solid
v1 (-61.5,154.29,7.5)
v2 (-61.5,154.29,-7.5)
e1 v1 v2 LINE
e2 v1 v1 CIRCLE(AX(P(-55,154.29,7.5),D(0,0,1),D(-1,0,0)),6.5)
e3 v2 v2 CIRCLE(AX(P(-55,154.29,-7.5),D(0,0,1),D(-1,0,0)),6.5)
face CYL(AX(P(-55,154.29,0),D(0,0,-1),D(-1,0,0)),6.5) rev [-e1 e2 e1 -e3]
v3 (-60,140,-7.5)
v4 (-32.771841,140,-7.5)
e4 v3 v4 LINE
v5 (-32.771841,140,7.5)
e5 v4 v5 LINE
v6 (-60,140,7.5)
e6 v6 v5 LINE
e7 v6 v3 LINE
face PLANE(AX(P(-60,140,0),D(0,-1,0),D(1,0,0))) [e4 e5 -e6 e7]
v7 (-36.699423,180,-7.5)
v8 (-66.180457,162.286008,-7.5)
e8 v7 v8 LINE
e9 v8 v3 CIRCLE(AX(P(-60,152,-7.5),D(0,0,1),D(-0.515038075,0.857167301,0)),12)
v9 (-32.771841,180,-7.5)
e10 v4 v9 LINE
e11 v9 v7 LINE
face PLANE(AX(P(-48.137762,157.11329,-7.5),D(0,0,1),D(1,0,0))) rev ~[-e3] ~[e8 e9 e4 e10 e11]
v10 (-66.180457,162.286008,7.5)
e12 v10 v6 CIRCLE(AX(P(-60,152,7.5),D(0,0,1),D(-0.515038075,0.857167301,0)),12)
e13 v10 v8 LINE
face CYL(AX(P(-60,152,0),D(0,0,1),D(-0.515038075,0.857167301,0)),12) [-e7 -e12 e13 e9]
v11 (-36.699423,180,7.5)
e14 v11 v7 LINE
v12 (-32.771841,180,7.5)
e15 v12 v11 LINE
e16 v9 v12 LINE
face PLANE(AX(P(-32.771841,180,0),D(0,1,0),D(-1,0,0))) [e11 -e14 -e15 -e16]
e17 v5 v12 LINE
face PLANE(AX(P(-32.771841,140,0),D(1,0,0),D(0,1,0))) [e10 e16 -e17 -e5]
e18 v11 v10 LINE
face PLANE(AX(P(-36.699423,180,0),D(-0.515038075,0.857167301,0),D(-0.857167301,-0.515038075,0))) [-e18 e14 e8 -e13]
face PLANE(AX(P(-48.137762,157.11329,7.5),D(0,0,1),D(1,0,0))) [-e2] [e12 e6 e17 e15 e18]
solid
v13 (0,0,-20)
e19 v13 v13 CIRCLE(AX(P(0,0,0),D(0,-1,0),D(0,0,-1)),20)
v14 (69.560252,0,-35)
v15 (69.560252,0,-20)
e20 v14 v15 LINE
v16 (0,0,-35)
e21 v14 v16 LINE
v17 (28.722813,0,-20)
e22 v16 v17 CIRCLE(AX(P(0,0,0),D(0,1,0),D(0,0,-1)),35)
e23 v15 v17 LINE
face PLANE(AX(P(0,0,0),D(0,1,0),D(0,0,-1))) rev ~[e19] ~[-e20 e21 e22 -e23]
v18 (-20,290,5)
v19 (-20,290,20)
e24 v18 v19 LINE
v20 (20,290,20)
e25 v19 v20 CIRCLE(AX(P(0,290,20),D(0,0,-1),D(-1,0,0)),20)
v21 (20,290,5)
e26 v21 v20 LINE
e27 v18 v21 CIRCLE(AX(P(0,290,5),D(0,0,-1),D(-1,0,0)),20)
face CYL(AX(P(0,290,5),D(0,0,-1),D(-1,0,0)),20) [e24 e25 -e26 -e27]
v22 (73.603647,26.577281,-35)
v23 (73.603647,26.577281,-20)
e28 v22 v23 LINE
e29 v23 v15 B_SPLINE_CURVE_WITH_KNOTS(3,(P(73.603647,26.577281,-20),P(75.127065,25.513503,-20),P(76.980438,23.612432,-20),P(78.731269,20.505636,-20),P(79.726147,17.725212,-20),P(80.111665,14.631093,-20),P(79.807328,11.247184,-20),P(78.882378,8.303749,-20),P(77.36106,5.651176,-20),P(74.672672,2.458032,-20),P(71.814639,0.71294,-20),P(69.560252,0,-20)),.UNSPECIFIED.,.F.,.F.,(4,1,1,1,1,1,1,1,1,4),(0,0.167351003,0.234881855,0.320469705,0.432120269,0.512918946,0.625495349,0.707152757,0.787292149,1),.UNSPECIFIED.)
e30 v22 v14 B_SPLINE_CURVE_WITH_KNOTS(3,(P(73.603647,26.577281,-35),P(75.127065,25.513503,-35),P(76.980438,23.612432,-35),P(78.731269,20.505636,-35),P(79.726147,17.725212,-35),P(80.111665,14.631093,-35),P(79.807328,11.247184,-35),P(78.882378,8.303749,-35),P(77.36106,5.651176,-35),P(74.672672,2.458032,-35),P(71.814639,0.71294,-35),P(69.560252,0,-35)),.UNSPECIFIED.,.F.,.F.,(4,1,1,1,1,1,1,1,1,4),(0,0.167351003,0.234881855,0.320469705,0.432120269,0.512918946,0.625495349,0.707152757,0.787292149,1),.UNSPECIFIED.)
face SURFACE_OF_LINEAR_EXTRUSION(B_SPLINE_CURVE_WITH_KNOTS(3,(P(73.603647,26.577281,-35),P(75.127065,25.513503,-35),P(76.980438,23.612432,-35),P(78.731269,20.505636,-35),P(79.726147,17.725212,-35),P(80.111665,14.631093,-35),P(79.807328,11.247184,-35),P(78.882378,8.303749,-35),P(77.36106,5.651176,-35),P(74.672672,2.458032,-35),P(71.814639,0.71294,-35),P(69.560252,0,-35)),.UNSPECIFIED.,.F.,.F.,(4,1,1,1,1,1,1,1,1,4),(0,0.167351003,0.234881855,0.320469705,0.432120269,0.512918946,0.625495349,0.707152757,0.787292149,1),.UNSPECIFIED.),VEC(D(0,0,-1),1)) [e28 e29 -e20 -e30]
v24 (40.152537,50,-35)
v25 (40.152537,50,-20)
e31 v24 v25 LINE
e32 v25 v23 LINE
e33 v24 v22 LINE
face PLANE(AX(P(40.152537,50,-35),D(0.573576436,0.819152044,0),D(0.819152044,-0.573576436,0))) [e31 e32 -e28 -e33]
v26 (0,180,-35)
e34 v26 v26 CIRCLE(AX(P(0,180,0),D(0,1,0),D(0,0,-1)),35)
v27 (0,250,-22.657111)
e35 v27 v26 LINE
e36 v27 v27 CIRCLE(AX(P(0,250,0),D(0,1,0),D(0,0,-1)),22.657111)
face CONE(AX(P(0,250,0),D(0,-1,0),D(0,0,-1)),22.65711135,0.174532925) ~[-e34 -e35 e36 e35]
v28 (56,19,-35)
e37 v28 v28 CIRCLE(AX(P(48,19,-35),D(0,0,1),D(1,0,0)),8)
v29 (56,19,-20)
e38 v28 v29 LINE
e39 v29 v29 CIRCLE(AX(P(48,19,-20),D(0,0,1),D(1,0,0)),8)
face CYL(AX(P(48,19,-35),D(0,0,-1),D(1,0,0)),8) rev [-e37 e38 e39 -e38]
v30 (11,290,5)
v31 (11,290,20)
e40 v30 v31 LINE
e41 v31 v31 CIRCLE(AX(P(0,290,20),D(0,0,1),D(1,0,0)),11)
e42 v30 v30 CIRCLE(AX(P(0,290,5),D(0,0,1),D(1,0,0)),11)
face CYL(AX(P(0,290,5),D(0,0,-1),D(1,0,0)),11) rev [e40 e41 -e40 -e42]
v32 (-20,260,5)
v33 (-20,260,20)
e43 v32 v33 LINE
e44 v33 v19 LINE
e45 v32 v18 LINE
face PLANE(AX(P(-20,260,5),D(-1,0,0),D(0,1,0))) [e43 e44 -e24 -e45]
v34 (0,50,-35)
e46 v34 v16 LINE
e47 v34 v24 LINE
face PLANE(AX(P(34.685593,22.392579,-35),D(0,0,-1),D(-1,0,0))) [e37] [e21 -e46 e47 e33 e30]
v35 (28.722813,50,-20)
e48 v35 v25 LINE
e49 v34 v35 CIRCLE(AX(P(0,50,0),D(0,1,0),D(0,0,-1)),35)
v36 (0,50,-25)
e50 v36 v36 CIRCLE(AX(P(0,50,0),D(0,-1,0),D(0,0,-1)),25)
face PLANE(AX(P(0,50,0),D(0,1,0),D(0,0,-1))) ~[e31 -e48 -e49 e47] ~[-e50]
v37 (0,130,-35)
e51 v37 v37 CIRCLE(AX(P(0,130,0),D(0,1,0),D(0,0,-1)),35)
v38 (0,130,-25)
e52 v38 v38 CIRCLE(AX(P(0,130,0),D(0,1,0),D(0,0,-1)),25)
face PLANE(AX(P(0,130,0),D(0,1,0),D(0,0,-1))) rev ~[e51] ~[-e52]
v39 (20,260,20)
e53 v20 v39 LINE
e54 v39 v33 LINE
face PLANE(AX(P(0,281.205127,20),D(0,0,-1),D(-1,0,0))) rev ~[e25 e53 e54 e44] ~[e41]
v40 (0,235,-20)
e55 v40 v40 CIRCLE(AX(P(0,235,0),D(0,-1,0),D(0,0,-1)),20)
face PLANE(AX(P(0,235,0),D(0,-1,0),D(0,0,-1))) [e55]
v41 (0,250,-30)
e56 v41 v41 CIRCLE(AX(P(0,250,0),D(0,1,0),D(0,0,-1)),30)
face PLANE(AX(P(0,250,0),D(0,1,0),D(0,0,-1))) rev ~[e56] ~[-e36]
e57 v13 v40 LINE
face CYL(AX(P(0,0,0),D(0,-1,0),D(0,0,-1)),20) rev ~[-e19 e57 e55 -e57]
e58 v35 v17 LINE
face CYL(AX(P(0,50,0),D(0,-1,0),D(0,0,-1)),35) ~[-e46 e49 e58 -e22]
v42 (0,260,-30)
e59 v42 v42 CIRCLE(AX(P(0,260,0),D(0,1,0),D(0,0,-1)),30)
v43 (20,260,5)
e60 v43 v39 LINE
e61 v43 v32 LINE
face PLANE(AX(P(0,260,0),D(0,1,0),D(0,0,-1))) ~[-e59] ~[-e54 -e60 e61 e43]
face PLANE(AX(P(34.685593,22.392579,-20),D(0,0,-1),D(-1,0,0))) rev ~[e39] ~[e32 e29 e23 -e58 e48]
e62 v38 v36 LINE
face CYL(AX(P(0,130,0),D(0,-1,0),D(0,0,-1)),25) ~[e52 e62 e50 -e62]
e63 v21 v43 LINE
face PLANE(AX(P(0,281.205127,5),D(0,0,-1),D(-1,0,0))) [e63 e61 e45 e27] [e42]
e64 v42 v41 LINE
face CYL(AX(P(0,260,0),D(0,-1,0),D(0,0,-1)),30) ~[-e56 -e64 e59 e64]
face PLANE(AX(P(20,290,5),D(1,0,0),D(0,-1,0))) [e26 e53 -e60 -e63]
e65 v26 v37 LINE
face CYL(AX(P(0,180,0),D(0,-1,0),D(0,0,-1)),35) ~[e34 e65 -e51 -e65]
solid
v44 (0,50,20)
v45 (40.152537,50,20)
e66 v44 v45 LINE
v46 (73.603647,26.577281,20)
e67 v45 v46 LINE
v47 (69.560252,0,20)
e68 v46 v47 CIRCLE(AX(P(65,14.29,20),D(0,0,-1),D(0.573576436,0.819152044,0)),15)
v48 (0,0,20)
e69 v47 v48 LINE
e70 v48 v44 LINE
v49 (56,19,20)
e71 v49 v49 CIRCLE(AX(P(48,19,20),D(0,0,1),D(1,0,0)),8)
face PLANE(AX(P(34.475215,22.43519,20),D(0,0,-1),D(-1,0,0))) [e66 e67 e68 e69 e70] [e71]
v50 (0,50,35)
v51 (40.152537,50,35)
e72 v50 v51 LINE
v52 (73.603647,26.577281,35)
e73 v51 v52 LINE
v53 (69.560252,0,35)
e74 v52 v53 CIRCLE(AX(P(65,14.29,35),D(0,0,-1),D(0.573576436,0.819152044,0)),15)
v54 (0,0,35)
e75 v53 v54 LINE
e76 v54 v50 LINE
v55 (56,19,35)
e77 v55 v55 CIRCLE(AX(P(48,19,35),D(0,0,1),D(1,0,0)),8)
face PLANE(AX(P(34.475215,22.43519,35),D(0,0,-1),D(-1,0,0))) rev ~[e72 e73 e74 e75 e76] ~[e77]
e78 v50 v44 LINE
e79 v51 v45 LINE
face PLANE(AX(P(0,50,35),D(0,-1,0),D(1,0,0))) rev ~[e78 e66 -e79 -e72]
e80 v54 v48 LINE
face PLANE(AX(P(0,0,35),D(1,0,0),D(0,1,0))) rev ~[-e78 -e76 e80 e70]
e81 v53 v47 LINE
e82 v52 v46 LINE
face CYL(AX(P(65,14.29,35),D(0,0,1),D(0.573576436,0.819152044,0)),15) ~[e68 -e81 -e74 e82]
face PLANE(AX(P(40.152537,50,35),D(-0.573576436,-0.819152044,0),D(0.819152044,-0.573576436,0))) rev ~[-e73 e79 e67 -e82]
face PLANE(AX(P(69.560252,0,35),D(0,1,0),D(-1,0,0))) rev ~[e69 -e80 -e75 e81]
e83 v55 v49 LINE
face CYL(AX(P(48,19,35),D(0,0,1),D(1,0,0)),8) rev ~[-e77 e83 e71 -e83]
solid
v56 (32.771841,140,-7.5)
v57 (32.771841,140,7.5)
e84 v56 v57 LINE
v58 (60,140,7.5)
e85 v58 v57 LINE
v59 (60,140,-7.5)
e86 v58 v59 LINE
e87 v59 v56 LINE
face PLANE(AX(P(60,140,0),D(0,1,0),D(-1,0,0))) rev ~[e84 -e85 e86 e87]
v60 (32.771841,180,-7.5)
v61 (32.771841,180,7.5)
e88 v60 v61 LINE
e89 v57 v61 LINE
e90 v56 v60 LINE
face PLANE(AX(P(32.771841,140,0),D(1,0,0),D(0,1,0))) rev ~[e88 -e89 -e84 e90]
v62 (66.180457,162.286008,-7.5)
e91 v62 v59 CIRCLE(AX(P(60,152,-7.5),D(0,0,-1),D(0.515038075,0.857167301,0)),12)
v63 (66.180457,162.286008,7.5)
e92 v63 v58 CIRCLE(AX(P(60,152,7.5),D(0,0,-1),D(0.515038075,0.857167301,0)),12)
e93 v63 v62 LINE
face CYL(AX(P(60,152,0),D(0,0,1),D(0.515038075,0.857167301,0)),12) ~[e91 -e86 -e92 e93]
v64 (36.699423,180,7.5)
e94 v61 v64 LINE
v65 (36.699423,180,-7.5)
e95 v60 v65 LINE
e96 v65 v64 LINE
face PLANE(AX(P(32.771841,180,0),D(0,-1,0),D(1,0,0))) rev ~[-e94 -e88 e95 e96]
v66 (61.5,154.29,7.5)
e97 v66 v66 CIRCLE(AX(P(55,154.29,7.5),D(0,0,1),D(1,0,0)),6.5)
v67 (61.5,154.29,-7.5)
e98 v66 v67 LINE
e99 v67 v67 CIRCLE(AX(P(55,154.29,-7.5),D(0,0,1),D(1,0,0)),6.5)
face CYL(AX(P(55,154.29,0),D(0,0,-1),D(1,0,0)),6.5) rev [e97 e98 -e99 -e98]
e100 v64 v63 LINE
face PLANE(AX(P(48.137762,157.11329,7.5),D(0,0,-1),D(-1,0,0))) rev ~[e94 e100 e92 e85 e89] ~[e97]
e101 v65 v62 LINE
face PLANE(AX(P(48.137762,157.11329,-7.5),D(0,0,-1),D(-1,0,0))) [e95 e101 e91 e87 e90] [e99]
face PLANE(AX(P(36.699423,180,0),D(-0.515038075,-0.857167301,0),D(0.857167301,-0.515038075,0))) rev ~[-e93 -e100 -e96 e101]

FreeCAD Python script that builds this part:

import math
import FreeCAD as App
import Part
import Sketcher

V = App.Vector
Q = App.Units.Quantity


def add_polygon(sketch, points):
    """Adds a closed chain of lines whose ends are joined by coincident constraints."""
    first, n = sketch.GeometryCount, len(points)
    for a, b in zip(points, points[1:] + points[:1]):
        sketch.addGeometry(Part.LineSegment(App.Vector(*a, 0), App.Vector(*b, 0)), False)
    for i in range(n):
        sketch.addConstraint(Sketcher.Constraint("Coincident", first + i, 2, first + (i + 1) % n, 1))

doc = App.newDocument("Part")
body = doc.addObject("PartDesign::Body", "Body")

sketch1 = body.newObject("Sketcher::SketchObject", "Sketch")
sketch1.AttachmentSupport = (doc.getObject("XY_Plane"), [""])
sketch1.MapMode = "FlatFace"
add_polygon(sketch1, [(30, 260), (0, 260), (0, 0), (35, 0), (35, 50), (25, 50), (25, 130), (35, 130), (35, 180), (23, 250), (30, 250)])
sketch1.addConstraint([
    Sketcher.Constraint("Horizontal", 0),
    Sketcher.Constraint("Vertical", 1),
    Sketcher.Constraint("Horizontal", 2),
    Sketcher.Constraint("Vertical", 3),
    Sketcher.Constraint("Horizontal", 4),
    Sketcher.Constraint("Vertical", 5),
    Sketcher.Constraint("Horizontal", 6),
    Sketcher.Constraint("Vertical", 7),
    Sketcher.Constraint("Horizontal", 9),
    Sketcher.Constraint("Vertical", 10),
    Sketcher.Constraint("Coincident", 1, 2, -1, 1),
    Sketcher.Constraint("Vertical", 3, 2, 6, 2),
    Sketcher.Constraint("Equal", 3, 7),
    Sketcher.Constraint("Equal", 6, 10),
    Sketcher.Constraint("DistanceX", 0, 2, 0, 1, Q("30 mm")),
    Sketcher.Constraint("DistanceX", 2, 1, 2, 2, Q("35 mm")),
    Sketcher.Constraint("DistanceX", 4, 2, 4, 1, Q("10 mm")),
    Sketcher.Constraint("DistanceY", 1, 2, 1, 1, Q("260 mm")),
    Sketcher.Constraint("DistanceY", 3, 1, 3, 2, Q("50 mm")),
    Sketcher.Constraint("DistanceY", 5, 1, 5, 2, Q("80 mm")),
    Sketcher.Constraint("Angle", 8, Q("100 deg")),
])
revolution = body.newObject("PartDesign::Revolution", "Revolution")
revolution.Profile = sketch1
revolution.ReferenceAxis = (sketch1, ["V_Axis"])
revolution.Angle = 360

sketch2 = body.newObject("Sketcher::SketchObject", "Sketch001")
sketch2.AttachmentSupport = (doc.getObject("XY_Plane"), [""])
sketch2.MapMode = "FlatFace"
sketch2.AttachmentOffset = App.Placement(V(0, 0, 5), App.Rotation())
sketch2.addGeometry([
    Part.LineSegment(V(-20, 290, 0), V(-20, 260, 0)),
    Part.LineSegment(V(-20, 260, 0), V(20, 260, 0)),
    Part.LineSegment(V(20, 260, 0), V(20, 290, 0)),
    Part.ArcOfCircle(Part.Circle(V(0, 290, 0), V(0, 0, 1), 20), math.radians(0), math.radians(180)),
    Part.Circle(V(0, 290, 0), V(0, 0, 1), 11),
], False)
sketch2.addConstraint([
    Sketcher.Constraint("Coincident", 0, 2, 1, 1),
    Sketcher.Constraint("Coincident", 1, 2, 2, 1),
    Sketcher.Constraint("Tangent", 2, 2, 3, 1),
    Sketcher.Constraint("Tangent", 3, 2, 0, 1),
    Sketcher.Constraint("Vertical", 0),
    Sketcher.Constraint("Horizontal", 1),
    Sketcher.Constraint("Vertical", 2),
    Sketcher.Constraint("Coincident", 4, 3, 3, 3),
    Sketcher.Constraint("PointOnObject", 3, 3, -2),
    Sketcher.Constraint("Diameter", 4, Q("22 mm")),
    Sketcher.Constraint("Radius", 3, Q("20 mm")),
    Sketcher.Constraint("DistanceY", 0, 2, 0, 1, Q("30 mm")),
    Sketcher.Constraint("DistanceY", -1, 1, 3, 3, Q("290 mm")),
])
pad1 = body.newObject("PartDesign::Pad", "Pad")
pad1.Profile = sketch2
pad1.Length = 15

sketch3 = body.newObject("Sketcher::SketchObject", "Sketch002")
sketch3.AttachmentSupport = (doc.getObject("XY_Plane"), [""])
sketch3.MapMode = "FlatFace"
sketch3.AttachmentOffset = App.Placement(V(0, 0, -35), App.Rotation())
sketch3.addGeometry([
    Part.LineSegment(V(0, 50, 0), V(0, 0, 0)),
    Part.LineSegment(V(0, 0, 0), V(69.560252, 0, 0)),
    Part.BSplineCurve([V(73.603647, 26.577281, 0), V(75.127065, 25.513503, 0), V(76.980438, 23.612432, 0), V(78.731269, 20.505636, 0), V(79.726147, 17.725212, 0), V(80.111665, 14.631093, 0), V(79.807328, 11.247184, 0), V(78.882378, 8.303749, 0), V(77.36106, 5.651176, 0), V(74.672672, 2.458032, 0), V(71.814639, 0.71294, 0), V(69.560252, 0, 0)], [4, 1, 1, 1, 1, 1, 1, 1, 1, 4], [0, 0.167351003, 0.234881855, 0.320469705, 0.432120269, 0.512918946, 0.625495349, 0.707152757, 0.787292149, 1], False, 3, [1, 1, 1, 1, 1, 1, 1, 1, 1, 1, 1, 1], False),
    Part.LineSegment(V(73.603647, 26.577281, 0), V(40.152537, 50, 0)),
    Part.LineSegment(V(40.152537, 50, 0), V(0, 50, 0)),
    Part.Circle(V(48, 19, 0), V(0, 0, 1), 8),
], False)
sketch3.addConstraint([
    Sketcher.Constraint("Block", 2),
    Sketcher.Constraint("Coincident", 0, 2, 1, 1),
    Sketcher.Constraint("Coincident", 1, 2, 2, 2),
    Sketcher.Constraint("Coincident", 2, 1, 3, 1),
    Sketcher.Constraint("Coincident", 3, 2, 4, 1),
    Sketcher.Constraint("Coincident", 4, 2, 0, 1),
    Sketcher.Constraint("Vertical", 0),
    Sketcher.Constraint("Horizontal", 1),
    Sketcher.Constraint("Horizontal", 4),
    Sketcher.Constraint("PointOnObject", 4, 2, -2),
    Sketcher.Constraint("Diameter", 5, Q("16 mm")),
    Sketcher.Constraint("DistanceY", 0, 2, 0, 1, Q("50 mm")),
    Sketcher.Constraint("Angle", 3, Q("145 deg")),
    Sketcher.Constraint("DistanceX", -1, 1, 5, 3, Q("48 mm")),
    Sketcher.Constraint("DistanceY", -1, 1, 5, 3, Q("19 mm")),
])
pad2 = body.newObject("PartDesign::Pad", "Pad001")
pad2.Profile = sketch3
pad2.Length = 15

sketch4 = body.newObject("Sketcher::SketchObject", "Sketch003")
sketch4.AttachmentSupport = (doc.getObject("XZ_Plane"), [""])
sketch4.MapMode = "FlatFace"
sketch4.addGeometry(Part.Circle(V(0, 0, 0), V(0, 0, 1), 20), False)
sketch4.addConstraint([
    Sketcher.Constraint("Coincident", 0, 3, -1, 1),
    Sketcher.Constraint("Diameter", 0, Q("40 mm")),
])
pocket1 = body.newObject("PartDesign::Pocket", "Pocket")
pocket1.Profile = sketch4
pocket1.Length = 235
body2 = doc.addObject("PartDesign::Body", "Body001")

sketch5 = body2.newObject("Sketcher::SketchObject", "Sketch004")
sketch5.AttachmentSupport = (doc.getObject("XY_Plane001"), [""])
sketch5.MapMode = "FlatFace"
sketch5.addGeometry([
    Part.LineSegment(V(66.2, 162.3, 0), V(36.7, 180, 0)),
    Part.LineSegment(V(36.7, 180, 0), V(32.8, 180, 0)),
    Part.LineSegment(V(32.8, 180, 0), V(32.8, 140, 0)),
    Part.LineSegment(V(32.8, 140, 0), V(60, 140, 0)),
    Part.ArcOfCircle(Part.Circle(V(60, 152, 0), V(0, 0, 1), 12), math.radians(-90), math.radians(59)),
    Part.Circle(V(55, 154.3, 0), V(0, 0, 1), 6.5),
], False)
sketch5.addConstraint([
    Sketcher.Constraint("Coincident", 0, 2, 1, 1),
    Sketcher.Constraint("Coincident", 1, 2, 2, 1),
    Sketcher.Constraint("Coincident", 2, 2, 3, 1),
    Sketcher.Constraint("Tangent", 3, 2, 4, 1),
    Sketcher.Constraint("Tangent", 4, 2, 0, 1),
    Sketcher.Constraint("Horizontal", 1),
    Sketcher.Constraint("Vertical", 2),
    Sketcher.Constraint("Horizontal", 3),
    Sketcher.Constraint("Diameter", 5, Q("13 mm")),
    Sketcher.Constraint("Radius", 4, Q("12 mm")),
    Sketcher.Constraint("DistanceY", 2, 2, 2, 1, Q("40 mm")),
    Sketcher.Constraint("Angle", 0, Q("149 deg")),
    Sketcher.Constraint("DistanceX", -1, 1, 4, 3, Q("60 mm")),
    Sketcher.Constraint("DistanceY", -1, 1, 4, 3, Q("152 mm")),
    Sketcher.Constraint("DistanceX", -1, 1, 5, 3, Q("55 mm")),
    Sketcher.Constraint("DistanceY", -1, 1, 5, 3, Q("154.29 mm")),
    Sketcher.Constraint("DistanceX", 3, 1, 3, 2, Q("27.228159 mm")),
])
pad3 = body2.newObject("PartDesign::Pad", "Pad002")
pad3.Profile = sketch5
pad3.Length = 15
pad3.Midplane = True
body3 = doc.addObject("PartDesign::Body", "Body002")

sketch6 = body3.newObject("Sketcher::SketchObject", "Sketch005")
sketch6.AttachmentSupport = (doc.getObject("XY_Plane002"), [""])
sketch6.MapMode = "FlatFace"
sketch6.addGeometry([
    Part.LineSegment(V(-60, 140, 0), V(-32.8, 140, 0)),
    Part.LineSegment(V(-32.8, 140, 0), V(-32.8, 180, 0)),
    Part.LineSegment(V(-32.8, 180, 0), V(-36.7, 180, 0)),
    Part.LineSegment(V(-36.7, 180, 0), V(-66.2, 162.3, 0)),
    Part.ArcOfCircle(Part.Circle(V(-60, 152, 0), V(0, 0, 1), 12), math.radians(121), math.radians(270)),
    Part.Circle(V(-55, 154.3, 0), V(0, 0, 1), 6.5),
], False)
sketch6.addConstraint([
    Sketcher.Constraint("Coincident", 0, 2, 1, 1),
    Sketcher.Constraint("Coincident", 1, 2, 2, 1),
    Sketcher.Constraint("Coincident", 2, 2, 3, 1),
    Sketcher.Constraint("Tangent", 3, 2, 4, 1),
    Sketcher.Constraint("Tangent", 4, 2, 0, 1),
    Sketcher.Constraint("Horizontal", 0),
    Sketcher.Constraint("Vertical", 1),
    Sketcher.Constraint("Horizontal", 2),
    Sketcher.Constraint("Diameter", 5, Q("13 mm")),
    Sketcher.Constraint("Radius", 4, Q("12 mm")),
    Sketcher.Constraint("DistanceY", 1, 1, 1, 2, Q("40 mm")),
    Sketcher.Constraint("Angle", 3, Q("-149 deg")),
    Sketcher.Constraint("DistanceX", 4, 3, -1, 1, Q("60 mm")),
    Sketcher.Constraint("DistanceY", -1, 1, 4, 3, Q("152 mm")),
    Sketcher.Constraint("DistanceX", 5, 3, -1, 1, Q("55 mm")),
    Sketcher.Constraint("DistanceY", -1, 1, 5, 3, Q("154.29 mm")),
    Sketcher.Constraint("DistanceX", 0, 1, 0, 2, Q("27.228159 mm")),
])
pad4 = body3.newObject("PartDesign::Pad", "Pad003")
pad4.Profile = sketch6
pad4.Length = 15
pad4.Midplane = True
body4 = doc.addObject("PartDesign::Body", "Body003")

sketch7 = body4.newObject("Sketcher::SketchObject", "Sketch006")
sketch7.AttachmentSupport = (doc.getObject("XY_Plane003"), [""])
sketch7.MapMode = "FlatFace"
sketch7.AttachmentOffset = App.Placement(V(0, 0, 35), App.Rotation())
sketch7.addGeometry([
    Part.LineSegment(V(74, 27, 0), V(40, 50, 0)),
    Part.LineSegment(V(40, 50, 0), V(0, 50, 0)),
    Part.LineSegment(V(0, 50, 0), V(0, 0, 0)),
    Part.LineSegment(V(0, 0, 0), V(70, 0, 0)),
    Part.ArcOfCircle(Part.Circle(V(65, 14, 0), V(0, 0, 1), 15), math.radians(-72), math.radians(55)),
    Part.Circle(V(48, 19, 0), V(0, 0, 1), 8),
], False)
sketch7.addConstraint([
    Sketcher.Constraint("Coincident", 0, 2, 1, 1),
    Sketcher.Constraint("Coincident", 1, 2, 2, 1),
    Sketcher.Constraint("Coincident", 2, 2, 3, 1),
    Sketcher.Constraint("Coincident", 3, 2, 4, 1),
    Sketcher.Constraint("Tangent", 4, 2, 0, 1),
    Sketcher.Constraint("Horizontal", 1),
    Sketcher.Constraint("Vertical", 2),
    Sketcher.Constraint("Horizontal", 3),
    Sketcher.Constraint("Coincident", 2, 2, -1, 1),
    Sketcher.Constraint("Diameter", 5, Q("16 mm")),
    Sketcher.Constraint("Radius", 4, Q("15 mm")),
    Sketcher.Constraint("DistanceY", 2, 2, 2, 1, Q("50 mm")),
    Sketcher.Constraint("Angle", 0, Q("145 deg")),
    Sketcher.Constraint("DistanceX", -1, 1, 4, 3, Q("65 mm")),
    Sketcher.Constraint("DistanceX", -1, 1, 5, 3, Q("48 mm")),
    Sketcher.Constraint("DistanceY", -1, 1, 5, 3, Q("19 mm")),
    Sketcher.Constraint("DistanceY", -1, 1, 4, 3, Q("14.29 mm")),
])
pad5 = body4.newObject("PartDesign::Pad", "Pad004")
pad5.Profile = sketch7
pad5.Length = 15
pad5.Reversed = True

doc.recompute()
